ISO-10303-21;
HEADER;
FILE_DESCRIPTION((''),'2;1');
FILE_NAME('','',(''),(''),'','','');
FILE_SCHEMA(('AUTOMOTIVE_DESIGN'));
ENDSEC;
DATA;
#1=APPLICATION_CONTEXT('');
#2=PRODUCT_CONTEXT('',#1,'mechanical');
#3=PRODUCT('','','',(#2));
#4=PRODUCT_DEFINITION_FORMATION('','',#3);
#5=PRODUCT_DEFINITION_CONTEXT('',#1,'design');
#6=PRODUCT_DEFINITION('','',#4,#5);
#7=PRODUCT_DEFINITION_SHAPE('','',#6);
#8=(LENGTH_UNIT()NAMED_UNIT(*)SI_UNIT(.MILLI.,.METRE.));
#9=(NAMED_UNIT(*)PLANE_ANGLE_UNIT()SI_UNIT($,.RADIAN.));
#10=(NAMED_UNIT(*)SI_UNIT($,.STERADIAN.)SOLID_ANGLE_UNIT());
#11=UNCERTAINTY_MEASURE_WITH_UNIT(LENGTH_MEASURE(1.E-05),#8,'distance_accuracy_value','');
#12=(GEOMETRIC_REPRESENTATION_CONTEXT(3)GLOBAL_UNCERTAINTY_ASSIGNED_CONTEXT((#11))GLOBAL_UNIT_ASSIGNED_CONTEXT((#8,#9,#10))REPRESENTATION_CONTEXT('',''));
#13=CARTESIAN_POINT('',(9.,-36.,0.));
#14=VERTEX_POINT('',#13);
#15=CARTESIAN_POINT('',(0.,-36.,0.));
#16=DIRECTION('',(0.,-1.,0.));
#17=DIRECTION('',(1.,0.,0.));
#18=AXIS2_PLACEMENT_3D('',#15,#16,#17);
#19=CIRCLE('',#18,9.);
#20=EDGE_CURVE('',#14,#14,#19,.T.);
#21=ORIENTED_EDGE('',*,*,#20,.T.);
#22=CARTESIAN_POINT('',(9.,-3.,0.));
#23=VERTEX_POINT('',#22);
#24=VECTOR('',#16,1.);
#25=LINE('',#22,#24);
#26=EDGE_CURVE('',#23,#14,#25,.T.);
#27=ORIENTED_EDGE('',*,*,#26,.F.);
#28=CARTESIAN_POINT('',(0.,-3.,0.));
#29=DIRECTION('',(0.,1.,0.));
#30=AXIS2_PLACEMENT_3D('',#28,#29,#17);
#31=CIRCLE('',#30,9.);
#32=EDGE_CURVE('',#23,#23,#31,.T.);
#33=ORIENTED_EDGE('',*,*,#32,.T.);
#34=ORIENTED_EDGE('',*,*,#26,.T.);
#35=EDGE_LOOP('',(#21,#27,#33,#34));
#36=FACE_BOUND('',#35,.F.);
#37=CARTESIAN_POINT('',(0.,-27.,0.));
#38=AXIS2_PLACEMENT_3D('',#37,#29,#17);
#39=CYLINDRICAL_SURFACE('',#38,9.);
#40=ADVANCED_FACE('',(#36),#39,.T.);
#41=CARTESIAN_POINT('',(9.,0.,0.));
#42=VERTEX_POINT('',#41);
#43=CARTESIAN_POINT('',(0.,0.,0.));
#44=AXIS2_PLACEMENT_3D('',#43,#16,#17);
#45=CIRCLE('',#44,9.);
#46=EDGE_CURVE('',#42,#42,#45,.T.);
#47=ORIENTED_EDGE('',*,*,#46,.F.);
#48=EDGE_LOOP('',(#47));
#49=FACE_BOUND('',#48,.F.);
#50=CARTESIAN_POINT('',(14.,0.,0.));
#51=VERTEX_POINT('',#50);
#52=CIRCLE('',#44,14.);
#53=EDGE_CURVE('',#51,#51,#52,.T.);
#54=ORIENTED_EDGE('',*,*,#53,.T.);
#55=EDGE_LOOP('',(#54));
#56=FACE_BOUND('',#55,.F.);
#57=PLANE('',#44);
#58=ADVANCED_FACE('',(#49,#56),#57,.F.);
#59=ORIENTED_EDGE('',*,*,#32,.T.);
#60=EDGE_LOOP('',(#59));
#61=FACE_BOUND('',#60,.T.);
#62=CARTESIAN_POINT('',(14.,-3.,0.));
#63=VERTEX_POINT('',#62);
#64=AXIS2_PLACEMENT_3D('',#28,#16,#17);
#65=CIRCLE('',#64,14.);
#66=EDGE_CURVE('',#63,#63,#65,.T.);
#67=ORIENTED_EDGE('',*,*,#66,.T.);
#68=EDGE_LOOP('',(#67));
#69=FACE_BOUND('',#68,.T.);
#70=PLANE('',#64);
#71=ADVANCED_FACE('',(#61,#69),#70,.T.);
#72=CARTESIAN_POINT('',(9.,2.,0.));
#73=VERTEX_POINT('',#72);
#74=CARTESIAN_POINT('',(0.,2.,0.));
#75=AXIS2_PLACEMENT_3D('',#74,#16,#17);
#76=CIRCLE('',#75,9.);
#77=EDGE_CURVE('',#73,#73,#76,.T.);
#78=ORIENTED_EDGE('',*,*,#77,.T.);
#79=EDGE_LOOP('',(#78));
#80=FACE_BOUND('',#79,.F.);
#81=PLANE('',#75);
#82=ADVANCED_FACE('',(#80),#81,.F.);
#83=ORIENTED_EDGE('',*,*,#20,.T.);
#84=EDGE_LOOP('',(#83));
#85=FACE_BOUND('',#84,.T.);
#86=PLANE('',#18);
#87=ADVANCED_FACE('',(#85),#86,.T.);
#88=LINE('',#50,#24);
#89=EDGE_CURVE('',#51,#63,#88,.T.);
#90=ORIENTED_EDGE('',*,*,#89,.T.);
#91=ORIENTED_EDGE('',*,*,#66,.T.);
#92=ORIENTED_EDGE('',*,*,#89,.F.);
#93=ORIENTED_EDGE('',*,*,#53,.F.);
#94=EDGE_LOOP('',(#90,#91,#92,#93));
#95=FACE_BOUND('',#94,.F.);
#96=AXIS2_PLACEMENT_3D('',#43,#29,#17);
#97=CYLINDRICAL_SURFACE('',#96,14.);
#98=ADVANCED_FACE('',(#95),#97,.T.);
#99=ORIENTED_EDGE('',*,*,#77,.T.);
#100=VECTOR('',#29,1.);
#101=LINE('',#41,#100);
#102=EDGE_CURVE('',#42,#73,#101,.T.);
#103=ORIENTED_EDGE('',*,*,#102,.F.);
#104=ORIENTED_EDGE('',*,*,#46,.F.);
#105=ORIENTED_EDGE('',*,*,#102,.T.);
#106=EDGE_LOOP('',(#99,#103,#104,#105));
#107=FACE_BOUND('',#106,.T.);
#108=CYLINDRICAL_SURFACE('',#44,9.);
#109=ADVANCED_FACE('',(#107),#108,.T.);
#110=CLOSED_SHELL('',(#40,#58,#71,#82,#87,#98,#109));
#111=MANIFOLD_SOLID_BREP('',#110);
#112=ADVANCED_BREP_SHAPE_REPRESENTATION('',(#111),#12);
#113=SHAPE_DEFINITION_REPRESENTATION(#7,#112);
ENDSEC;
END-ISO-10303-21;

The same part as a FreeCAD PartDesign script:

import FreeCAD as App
import Part
import Sketcher
from FreeCAD import Vector
Q = App.Units.Quantity

doc = App.newDocument("Part")
body = doc.addObject("PartDesign::Body", "Body")

# Sketch on XZ plane
sketch1 = body.newObject("Sketcher::SketchObject", "Sketch")
sketch1.AttachmentSupport = (doc.getObject("XZ_Plane"), [""])
sketch1.MapMode = "FlatFace"
sketch1.addGeometry(Part.Circle(Vector(0, 0, 0), Vector(0, 0, 1), 14), False)
sketch1.addConstraint([
    Sketcher.Constraint("Coincident", 0, 3, -1, 1),
    Sketcher.Constraint("Diameter", 0, Q("28 mm")),
])
pad1 = body.newObject("PartDesign::Pad", "Pad")
pad1.Profile = sketch1
pad1.Length = 3

# Sketch on XZ plane
sketch2 = body.newObject("Sketcher::SketchObject", "Sketch001")
sketch2.AttachmentSupport = (doc.getObject("XZ_Plane"), [""])
sketch2.MapMode = "FlatFace"
sketch2.addGeometry(Part.Circle(Vector(0, 0, 0), Vector(0, 0, 1), 9), False)
sketch2.addConstraint([
    Sketcher.Constraint("Coincident", 0, 3, -1, 1),
    Sketcher.Constraint("Diameter", 0, Q("18 mm")),
])
pad2 = body.newObject("PartDesign::Pad", "Pad001")
pad2.Profile = sketch2
pad2.Length = 27

# Sketch on XZ plane
sketch3 = body.newObject("Sketcher::SketchObject", "Sketch002")
sketch3.AttachmentSupport = (doc.getObject("XZ_Plane"), [""])
sketch3.MapMode = "FlatFace"
sketch3.addGeometry(Part.Circle(Vector(0, 0, 0), Vector(0, 0, 1), 9), False)
sketch3.addConstraint([
    Sketcher.Constraint("Coincident", 0, 3, -1, 1),
    Sketcher.Constraint("Diameter", 0, Q("18 mm")),
])
pad3 = body.newObject("PartDesign::Pad", "Pad002")
pad3.Profile = sketch3
pad3.Length = 2
pad3.Reversed = True

# Sketch on XZ plane
sketch4 = body.newObject("Sketcher::SketchObject", "Sketch003")
sketch4.AttachmentSupport = (doc.getObject("XZ_Plane"), [""])
sketch4.MapMode = "FlatFace"
sketch4.AttachmentOffset = App.Placement(Vector(0, 0, 27), App.Rotation())
sketch4.addGeometry(Part.Circle(Vector(0, 0, 0), Vector(0, 0, 1), 3.8), False)
sketch4.addConstraint([
    Sketcher.Constraint("Coincident", 0, 3, -1, 1),
    Sketcher.Constraint("Diameter", 0, Q("7.5 mm")),
])
pad4 = body.newObject("PartDesign::Pad", "Pad003")
pad4.Profile = sketch4
pad4.Length = 4

# Sketch on XZ plane
sketch5 = body.newObject("Sketcher::SketchObject", "Sketch004")
sketch5.AttachmentSupport = (doc.getObject("XZ_Plane"), [""])
sketch5.MapMode = "FlatFace"
sketch5.AttachmentOffset = App.Placement(Vector(0, 0, 27), App.Rotation())
sketch5.addGeometry(Part.Circle(Vector(0, 0, 0), Vector(0, 0, 1), 9), False)
sketch5.addConstraint([
    Sketcher.Constraint("Coincident", 0, 3, -1, 1),
    Sketcher.Constraint("Diameter", 0, Q("18 mm")),
])
pad5 = body.newObject("PartDesign::Pad", "Pad004")
pad5.Profile = sketch5
pad5.Length = 9

doc.recompute()
